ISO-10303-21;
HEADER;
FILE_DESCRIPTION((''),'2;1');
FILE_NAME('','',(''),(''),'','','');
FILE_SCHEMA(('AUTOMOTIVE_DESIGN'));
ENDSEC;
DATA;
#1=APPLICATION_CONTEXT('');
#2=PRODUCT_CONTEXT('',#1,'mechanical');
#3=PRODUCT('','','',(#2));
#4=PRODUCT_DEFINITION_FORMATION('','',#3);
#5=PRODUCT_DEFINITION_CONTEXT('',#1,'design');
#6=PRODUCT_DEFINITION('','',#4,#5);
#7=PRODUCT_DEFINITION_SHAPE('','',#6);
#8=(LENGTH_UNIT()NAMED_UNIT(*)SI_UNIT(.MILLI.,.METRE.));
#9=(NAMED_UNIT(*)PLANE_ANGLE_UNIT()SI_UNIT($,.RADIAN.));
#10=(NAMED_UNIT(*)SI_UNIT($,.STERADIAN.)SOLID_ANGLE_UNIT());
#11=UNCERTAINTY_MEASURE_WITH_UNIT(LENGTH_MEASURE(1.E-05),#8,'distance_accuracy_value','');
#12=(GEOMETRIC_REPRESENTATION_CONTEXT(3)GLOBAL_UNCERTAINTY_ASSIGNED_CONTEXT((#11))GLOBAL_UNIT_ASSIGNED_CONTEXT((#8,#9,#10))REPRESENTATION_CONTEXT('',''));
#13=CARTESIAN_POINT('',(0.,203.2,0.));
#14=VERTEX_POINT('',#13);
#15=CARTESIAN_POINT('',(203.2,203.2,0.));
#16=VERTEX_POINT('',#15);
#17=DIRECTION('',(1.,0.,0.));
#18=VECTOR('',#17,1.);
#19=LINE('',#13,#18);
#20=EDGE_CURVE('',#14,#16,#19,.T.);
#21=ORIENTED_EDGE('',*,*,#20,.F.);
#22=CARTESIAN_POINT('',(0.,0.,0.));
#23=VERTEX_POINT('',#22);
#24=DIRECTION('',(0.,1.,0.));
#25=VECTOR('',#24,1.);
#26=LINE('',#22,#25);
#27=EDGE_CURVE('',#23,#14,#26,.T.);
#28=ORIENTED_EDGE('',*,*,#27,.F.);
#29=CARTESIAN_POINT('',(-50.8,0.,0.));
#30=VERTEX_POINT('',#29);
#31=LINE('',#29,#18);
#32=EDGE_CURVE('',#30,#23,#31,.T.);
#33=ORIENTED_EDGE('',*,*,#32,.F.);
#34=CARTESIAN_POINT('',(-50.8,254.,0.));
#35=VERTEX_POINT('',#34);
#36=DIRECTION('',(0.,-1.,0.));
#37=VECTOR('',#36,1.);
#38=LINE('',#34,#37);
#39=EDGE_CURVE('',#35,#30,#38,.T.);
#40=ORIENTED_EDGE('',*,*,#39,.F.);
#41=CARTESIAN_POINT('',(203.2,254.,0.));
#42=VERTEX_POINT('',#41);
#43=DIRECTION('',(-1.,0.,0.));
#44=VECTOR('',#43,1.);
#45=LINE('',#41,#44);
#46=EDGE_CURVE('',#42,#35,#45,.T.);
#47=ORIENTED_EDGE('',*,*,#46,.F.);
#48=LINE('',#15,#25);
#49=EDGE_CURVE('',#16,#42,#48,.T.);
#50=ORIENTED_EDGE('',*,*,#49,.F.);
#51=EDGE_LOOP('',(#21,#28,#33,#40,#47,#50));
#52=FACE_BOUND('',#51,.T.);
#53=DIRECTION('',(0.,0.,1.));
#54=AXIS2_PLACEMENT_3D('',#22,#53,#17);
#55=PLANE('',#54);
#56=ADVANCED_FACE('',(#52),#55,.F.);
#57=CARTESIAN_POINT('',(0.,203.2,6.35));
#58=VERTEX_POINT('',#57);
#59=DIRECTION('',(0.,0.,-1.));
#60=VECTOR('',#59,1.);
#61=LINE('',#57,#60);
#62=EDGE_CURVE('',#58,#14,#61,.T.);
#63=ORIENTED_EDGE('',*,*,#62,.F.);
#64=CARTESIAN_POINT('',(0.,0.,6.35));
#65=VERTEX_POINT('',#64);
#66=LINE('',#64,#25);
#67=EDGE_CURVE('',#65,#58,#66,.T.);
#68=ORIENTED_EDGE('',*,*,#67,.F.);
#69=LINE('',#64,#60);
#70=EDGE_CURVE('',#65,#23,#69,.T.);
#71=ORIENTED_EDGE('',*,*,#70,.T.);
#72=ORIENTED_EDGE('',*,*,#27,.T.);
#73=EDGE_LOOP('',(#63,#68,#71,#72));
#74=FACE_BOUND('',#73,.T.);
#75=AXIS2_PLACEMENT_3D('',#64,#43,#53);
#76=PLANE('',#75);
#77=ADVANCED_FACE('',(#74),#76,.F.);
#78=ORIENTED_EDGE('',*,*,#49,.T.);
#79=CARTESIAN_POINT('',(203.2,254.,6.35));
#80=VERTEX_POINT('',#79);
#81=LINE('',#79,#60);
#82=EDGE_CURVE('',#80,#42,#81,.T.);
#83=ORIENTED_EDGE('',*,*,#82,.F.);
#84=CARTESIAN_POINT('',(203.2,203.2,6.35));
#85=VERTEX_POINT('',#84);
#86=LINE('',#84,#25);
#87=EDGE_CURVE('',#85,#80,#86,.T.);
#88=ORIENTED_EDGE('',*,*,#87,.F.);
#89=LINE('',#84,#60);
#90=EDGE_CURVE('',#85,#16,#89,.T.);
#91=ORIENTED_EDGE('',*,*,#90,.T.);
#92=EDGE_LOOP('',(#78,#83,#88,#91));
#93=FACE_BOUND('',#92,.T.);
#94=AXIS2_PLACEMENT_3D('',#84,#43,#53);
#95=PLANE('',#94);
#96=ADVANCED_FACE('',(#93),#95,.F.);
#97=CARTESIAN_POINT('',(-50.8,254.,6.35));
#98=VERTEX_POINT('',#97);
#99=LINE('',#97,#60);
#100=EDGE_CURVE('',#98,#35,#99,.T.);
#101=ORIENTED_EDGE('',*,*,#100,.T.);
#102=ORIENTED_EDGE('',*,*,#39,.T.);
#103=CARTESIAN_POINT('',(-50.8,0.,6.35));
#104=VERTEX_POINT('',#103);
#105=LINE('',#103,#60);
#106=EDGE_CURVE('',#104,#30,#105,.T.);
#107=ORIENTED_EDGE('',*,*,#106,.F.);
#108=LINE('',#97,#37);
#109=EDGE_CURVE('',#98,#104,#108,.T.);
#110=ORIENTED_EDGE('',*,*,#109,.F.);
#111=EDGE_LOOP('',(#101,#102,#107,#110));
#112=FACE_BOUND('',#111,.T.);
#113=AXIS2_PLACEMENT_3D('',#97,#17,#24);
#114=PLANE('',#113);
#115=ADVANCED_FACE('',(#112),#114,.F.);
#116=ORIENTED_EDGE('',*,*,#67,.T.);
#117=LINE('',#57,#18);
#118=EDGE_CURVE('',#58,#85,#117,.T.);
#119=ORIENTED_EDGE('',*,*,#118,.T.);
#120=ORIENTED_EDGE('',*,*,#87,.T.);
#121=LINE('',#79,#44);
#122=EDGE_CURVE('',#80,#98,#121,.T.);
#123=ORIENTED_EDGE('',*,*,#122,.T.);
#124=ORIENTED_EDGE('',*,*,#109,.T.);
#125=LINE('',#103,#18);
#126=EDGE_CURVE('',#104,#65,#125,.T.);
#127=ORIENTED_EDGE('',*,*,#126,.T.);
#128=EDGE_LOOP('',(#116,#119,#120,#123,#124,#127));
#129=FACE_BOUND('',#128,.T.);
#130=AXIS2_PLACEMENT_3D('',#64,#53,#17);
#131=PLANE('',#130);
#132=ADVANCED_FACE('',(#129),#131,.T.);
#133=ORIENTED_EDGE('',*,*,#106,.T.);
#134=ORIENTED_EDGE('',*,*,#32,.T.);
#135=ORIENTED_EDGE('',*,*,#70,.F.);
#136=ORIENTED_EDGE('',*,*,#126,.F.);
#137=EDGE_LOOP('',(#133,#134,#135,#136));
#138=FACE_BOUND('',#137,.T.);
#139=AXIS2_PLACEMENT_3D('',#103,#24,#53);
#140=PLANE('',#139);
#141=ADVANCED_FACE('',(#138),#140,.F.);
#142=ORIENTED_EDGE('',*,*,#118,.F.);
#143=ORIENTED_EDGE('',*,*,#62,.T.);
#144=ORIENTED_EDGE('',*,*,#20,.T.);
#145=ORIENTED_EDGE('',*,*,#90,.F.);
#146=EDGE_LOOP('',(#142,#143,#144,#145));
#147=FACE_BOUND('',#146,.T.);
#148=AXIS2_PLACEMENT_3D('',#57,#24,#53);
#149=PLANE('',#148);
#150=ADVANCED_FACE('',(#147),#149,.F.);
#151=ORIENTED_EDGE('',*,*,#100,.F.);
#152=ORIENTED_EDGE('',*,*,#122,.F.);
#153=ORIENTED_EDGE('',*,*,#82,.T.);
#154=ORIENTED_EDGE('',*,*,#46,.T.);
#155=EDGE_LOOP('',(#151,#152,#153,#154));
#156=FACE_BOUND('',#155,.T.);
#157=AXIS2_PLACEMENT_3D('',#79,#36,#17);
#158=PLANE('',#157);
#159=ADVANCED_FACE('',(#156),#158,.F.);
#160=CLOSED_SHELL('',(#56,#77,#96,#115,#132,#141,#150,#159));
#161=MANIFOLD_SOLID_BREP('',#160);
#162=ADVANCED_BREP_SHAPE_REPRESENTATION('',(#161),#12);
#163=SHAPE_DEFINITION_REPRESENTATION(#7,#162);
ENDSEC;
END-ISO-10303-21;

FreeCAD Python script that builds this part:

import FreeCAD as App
import Part
import Sketcher

V = App.Vector
Q = App.Units.Quantity


def add_polygon(sketch, points):
    """Adds a closed chain of lines whose ends are joined by coincident constraints."""
    first, n = sketch.GeometryCount, len(points)
    for a, b in zip(points, points[1:] + points[:1]):
        sketch.addGeometry(Part.LineSegment(App.Vector(*a, 0), App.Vector(*b, 0)), False)
    for i in range(n):
        sketch.addConstraint(Sketcher.Constraint("Coincident", first + i, 2, first + (i + 1) % n, 1))

doc = App.newDocument("Part")
params = doc.addObject("Spreadsheet::Sheet", "Params")
for row, (alias, value) in enumerate([
    ("sketch1_width", "8 in"),
    ("sketch1_width2", "10 in"),
    ("pad1_length", "0.25 in"),
], start=1):
    params.set(f"A{row}", alias)
    params.set(f"B{row}", "=" + value)
    params.setAlias(f"B{row}", alias)

body = doc.addObject("PartDesign::Body", "Body")

# Sketch on XY plane
sketch1 = doc.addObject("Sketcher::SketchObject", "Sketch")
body.addObject(sketch1)
sketch1.AttachmentSupport = (doc.XY_Plane, [""])
sketch1.MapMode = "FlatFace"
add_polygon(sketch1, [(0, 0), (0, 203.2), (203.2, 203.2), (203.2, 254), (-50.8, 254), (-50.8, 0)])  # lines 0-5
sketch1.addConstraint([
    Sketcher.Constraint("Vertical", 0),
    Sketcher.Constraint("Horizontal", 1),
    Sketcher.Constraint("Vertical", 2),
    Sketcher.Constraint("Horizontal", 3),
    Sketcher.Constraint("Vertical", 4),
    Sketcher.Constraint("Horizontal", 5),
    Sketcher.Constraint("Coincident", 5, 2, -1, 1),
    Sketcher.Constraint("Equal", 1, 0),
    Sketcher.Constraint("Equal", 5, 2),
    Sketcher.Constraint("DistanceX", 1, 1, 1, 2, Q("8 in")),
    Sketcher.Constraint("DistanceX", 3, 2, 3, 1, Q("10 in")),
])
sketch1.setExpression("Constraints[15]", "Params.sketch1_width")
sketch1.setExpression("Constraints[16]", "Params.sketch1_width2")
pad1 = doc.addObject("PartDesign::Pad", "Pad")
body.addObject(pad1)
pad1.Profile = sketch1
pad1.setExpression("Length", "Params.pad1_length")

doc.recompute()
